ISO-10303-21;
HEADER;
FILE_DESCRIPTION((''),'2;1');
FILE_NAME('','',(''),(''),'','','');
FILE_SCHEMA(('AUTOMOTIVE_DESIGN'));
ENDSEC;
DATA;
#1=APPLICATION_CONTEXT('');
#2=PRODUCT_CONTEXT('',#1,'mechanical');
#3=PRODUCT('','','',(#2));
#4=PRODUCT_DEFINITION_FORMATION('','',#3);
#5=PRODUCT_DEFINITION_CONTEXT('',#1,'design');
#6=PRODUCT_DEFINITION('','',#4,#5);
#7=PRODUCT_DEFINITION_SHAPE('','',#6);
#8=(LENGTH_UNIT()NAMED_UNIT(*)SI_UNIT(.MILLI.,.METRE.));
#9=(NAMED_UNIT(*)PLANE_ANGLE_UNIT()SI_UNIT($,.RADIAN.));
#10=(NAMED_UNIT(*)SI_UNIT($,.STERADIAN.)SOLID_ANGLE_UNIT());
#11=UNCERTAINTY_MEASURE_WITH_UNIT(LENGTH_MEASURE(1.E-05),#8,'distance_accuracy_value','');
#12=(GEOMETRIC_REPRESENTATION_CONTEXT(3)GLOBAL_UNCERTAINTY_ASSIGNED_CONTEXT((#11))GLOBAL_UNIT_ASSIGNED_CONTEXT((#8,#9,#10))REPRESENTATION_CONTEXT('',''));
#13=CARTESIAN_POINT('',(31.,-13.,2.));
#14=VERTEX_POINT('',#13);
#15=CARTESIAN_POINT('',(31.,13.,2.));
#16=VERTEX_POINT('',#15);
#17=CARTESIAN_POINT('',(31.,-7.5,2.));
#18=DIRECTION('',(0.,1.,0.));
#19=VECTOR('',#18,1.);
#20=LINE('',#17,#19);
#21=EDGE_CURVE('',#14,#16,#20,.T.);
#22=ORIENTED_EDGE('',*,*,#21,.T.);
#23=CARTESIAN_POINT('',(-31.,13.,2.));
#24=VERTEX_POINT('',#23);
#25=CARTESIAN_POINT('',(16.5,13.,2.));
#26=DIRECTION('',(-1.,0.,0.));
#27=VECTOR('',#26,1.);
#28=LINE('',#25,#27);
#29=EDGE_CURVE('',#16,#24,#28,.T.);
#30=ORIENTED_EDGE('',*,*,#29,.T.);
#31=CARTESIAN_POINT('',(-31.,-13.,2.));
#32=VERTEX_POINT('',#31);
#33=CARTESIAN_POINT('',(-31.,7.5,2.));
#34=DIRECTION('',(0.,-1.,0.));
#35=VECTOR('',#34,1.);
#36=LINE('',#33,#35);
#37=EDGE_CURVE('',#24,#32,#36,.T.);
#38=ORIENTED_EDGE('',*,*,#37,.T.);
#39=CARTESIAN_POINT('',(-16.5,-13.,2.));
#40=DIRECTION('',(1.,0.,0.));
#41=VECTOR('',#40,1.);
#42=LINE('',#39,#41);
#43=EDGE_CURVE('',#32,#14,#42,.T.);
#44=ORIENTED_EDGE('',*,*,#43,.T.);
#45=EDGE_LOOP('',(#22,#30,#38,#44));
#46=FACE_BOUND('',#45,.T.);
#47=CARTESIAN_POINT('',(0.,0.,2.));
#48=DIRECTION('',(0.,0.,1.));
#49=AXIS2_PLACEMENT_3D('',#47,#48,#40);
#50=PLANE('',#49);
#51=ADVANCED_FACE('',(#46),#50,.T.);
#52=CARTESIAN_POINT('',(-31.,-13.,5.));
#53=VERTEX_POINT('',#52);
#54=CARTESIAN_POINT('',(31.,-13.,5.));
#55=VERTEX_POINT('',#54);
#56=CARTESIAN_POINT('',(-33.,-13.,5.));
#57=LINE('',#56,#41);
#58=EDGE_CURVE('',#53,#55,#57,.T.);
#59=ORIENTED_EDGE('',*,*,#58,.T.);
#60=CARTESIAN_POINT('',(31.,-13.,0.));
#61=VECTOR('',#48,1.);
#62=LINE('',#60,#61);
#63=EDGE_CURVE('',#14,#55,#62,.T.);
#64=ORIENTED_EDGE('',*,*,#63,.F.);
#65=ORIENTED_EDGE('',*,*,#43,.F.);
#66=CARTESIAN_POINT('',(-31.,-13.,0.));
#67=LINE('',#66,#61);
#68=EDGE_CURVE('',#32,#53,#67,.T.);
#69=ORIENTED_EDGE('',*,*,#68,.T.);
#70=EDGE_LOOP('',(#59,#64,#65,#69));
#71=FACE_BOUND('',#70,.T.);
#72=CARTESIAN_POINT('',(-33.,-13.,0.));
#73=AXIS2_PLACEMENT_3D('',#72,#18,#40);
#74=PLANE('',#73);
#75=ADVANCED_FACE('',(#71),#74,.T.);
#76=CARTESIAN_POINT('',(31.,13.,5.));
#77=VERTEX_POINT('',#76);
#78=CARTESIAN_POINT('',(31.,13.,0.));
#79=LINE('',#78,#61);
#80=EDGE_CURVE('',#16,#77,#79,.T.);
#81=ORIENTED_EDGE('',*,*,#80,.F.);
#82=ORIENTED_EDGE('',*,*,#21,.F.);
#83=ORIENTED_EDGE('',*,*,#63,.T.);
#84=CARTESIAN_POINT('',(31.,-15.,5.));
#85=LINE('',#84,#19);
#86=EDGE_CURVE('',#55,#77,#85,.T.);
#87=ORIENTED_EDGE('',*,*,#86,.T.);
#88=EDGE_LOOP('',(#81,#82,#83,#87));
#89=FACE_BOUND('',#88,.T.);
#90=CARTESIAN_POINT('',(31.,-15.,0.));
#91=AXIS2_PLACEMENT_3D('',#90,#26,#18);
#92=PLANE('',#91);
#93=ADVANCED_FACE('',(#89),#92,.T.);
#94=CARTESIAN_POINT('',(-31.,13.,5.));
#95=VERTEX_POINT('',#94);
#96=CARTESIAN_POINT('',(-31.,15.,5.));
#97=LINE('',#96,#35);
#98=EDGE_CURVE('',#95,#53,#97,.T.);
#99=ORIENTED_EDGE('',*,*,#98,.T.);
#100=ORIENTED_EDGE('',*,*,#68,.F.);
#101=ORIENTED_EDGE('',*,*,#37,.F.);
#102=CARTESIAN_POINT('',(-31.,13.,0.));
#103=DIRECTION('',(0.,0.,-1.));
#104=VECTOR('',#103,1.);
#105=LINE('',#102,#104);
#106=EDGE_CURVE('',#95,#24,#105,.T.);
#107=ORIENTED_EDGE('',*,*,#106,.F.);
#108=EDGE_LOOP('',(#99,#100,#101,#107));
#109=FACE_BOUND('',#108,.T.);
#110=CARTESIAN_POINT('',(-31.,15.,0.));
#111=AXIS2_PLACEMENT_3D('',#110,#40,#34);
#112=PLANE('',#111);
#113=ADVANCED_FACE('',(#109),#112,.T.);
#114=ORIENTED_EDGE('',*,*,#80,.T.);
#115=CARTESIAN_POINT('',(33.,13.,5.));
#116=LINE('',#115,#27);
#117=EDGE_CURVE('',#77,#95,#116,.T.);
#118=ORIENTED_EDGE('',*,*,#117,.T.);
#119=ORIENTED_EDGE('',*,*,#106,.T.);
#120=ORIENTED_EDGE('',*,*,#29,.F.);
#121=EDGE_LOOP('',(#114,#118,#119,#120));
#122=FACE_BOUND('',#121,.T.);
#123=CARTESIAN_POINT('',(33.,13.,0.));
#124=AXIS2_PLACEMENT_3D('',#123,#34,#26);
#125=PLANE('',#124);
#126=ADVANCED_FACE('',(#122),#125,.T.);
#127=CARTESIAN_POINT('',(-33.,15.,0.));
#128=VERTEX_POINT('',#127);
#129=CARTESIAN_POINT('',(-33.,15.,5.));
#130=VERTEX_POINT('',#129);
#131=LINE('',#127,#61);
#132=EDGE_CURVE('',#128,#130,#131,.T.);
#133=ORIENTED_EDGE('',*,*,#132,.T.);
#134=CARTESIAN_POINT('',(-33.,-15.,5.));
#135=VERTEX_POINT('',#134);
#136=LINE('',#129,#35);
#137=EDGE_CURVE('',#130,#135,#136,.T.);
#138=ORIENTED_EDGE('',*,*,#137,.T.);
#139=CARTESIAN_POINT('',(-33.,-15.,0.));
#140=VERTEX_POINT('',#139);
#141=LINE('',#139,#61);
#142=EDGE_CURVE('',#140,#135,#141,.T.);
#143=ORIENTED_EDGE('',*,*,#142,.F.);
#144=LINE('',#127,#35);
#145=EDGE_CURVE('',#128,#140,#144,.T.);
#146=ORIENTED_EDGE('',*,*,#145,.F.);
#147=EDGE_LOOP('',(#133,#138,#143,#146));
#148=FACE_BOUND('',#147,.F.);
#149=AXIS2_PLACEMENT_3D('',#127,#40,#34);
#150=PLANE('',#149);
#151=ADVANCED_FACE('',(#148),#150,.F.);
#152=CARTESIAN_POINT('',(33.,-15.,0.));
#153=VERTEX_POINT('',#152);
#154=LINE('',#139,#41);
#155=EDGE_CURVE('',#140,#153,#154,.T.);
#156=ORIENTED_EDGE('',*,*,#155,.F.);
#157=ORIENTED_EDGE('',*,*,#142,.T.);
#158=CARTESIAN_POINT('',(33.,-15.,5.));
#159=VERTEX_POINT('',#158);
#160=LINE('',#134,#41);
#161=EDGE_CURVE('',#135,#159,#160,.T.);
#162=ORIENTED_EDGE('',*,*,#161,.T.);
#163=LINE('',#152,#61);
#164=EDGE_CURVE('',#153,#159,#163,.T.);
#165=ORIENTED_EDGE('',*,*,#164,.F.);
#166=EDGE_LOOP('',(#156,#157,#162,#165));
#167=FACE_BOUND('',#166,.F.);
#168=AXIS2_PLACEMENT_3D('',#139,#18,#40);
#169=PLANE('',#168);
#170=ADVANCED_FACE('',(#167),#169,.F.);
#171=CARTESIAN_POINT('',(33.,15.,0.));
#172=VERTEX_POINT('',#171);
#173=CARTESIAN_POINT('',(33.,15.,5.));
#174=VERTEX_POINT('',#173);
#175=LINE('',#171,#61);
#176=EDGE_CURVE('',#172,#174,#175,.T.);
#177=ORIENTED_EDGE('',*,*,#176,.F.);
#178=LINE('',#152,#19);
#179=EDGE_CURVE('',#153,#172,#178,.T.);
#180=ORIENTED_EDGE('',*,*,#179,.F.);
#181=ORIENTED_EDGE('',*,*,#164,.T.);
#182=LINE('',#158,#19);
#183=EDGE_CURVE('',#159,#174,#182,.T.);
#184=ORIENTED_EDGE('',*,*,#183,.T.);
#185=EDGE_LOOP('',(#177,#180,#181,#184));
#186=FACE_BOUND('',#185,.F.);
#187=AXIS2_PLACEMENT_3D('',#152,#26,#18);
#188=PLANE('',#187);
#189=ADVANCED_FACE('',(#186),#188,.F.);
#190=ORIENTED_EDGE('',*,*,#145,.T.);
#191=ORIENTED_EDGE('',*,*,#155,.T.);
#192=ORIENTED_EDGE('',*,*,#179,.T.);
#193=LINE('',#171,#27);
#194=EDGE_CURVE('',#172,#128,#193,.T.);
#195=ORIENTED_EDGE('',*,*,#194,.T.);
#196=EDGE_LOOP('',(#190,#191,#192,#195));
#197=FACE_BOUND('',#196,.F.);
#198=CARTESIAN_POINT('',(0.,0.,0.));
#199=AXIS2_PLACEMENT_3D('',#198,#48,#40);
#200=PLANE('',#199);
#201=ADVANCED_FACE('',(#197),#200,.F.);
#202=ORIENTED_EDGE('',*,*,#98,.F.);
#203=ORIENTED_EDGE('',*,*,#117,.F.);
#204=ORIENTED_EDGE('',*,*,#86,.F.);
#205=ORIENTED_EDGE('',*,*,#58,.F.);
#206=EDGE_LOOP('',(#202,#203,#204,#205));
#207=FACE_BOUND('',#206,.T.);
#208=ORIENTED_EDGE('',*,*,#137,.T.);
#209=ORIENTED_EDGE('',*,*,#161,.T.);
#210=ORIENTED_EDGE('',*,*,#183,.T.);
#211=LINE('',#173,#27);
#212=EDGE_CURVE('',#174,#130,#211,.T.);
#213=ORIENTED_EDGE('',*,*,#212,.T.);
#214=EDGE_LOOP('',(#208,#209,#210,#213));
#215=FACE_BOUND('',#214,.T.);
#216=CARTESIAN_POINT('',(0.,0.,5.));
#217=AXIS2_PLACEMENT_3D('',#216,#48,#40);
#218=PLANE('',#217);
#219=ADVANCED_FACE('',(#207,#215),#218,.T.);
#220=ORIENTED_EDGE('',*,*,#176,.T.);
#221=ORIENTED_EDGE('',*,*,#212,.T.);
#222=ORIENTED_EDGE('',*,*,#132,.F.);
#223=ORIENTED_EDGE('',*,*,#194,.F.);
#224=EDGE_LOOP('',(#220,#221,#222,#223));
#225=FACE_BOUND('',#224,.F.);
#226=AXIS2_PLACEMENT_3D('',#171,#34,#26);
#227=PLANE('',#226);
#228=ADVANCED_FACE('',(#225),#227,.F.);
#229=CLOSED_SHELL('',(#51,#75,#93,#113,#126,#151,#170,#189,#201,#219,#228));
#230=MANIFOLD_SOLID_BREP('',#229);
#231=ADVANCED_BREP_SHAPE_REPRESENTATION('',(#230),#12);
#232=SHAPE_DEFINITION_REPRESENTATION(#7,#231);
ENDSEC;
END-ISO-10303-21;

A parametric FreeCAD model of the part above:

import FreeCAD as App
import Part
import Sketcher
Q = App.Units.Quantity


def faces_at(feature, points):
    """Names of the faces that lie closest to the given points."""
    faces = feature.Shape.Faces
    near = lambda p: min(range(len(faces)), key=lambda i: faces[i].distToShape(Part.Vertex(*p))[0])
    return sorted({f"Face{near(p) + 1}" for p in points})


def add_polygon(sketch, points):
    """Adds a closed chain of lines whose ends are joined by coincident constraints."""
    first, n = sketch.GeometryCount, len(points)
    for a, b in zip(points, points[1:] + points[:1]):
        sketch.addGeometry(Part.LineSegment(App.Vector(*a, 0), App.Vector(*b, 0)), False)
    for i in range(n):
        sketch.addConstraint(Sketcher.Constraint("Coincident", first + i, 2, first + (i + 1) % n, 1))

doc = App.newDocument("Part")
body = doc.addObject("PartDesign::Body", "Body")

# Sketch on XY plane
sketch1 = body.newObject("Sketcher::SketchObject", "Sketch")
sketch1.AttachmentSupport = (doc.getObject("XY_Plane"), [""])
sketch1.MapMode = "FlatFace"
add_polygon(sketch1, [(-33, 15), (-33, -15), (33, -15), (33, 15)])  # lines 0-3
sketch1.addConstraint([
    Sketcher.Constraint("Vertical", 0),
    Sketcher.Constraint("Horizontal", 1),
    Sketcher.Constraint("Vertical", 2),
    Sketcher.Constraint("Horizontal", 3),
    Sketcher.Constraint("Symmetric", 0, 2, 2, 2, -1, 1),
    Sketcher.Constraint("DistanceX", 1, 1, 1, 2, Q("66 mm")),
    Sketcher.Constraint("DistanceY", 0, 2, 0, 1, Q("30 mm")),
])
pad1 = body.newObject("PartDesign::Pad", "Pad")
pad1.Profile = sketch1
pad1.Length = 5
doc.recompute()

thickness = body.newObject("PartDesign::Thickness", "Thickness")
thickness.Base = (pad1, faces_at(pad1, [(0, 0, 5)]))
thickness.Value = 2
thickness.Reversed = True
thickness.Join = "Arc"

doc.recompute()
